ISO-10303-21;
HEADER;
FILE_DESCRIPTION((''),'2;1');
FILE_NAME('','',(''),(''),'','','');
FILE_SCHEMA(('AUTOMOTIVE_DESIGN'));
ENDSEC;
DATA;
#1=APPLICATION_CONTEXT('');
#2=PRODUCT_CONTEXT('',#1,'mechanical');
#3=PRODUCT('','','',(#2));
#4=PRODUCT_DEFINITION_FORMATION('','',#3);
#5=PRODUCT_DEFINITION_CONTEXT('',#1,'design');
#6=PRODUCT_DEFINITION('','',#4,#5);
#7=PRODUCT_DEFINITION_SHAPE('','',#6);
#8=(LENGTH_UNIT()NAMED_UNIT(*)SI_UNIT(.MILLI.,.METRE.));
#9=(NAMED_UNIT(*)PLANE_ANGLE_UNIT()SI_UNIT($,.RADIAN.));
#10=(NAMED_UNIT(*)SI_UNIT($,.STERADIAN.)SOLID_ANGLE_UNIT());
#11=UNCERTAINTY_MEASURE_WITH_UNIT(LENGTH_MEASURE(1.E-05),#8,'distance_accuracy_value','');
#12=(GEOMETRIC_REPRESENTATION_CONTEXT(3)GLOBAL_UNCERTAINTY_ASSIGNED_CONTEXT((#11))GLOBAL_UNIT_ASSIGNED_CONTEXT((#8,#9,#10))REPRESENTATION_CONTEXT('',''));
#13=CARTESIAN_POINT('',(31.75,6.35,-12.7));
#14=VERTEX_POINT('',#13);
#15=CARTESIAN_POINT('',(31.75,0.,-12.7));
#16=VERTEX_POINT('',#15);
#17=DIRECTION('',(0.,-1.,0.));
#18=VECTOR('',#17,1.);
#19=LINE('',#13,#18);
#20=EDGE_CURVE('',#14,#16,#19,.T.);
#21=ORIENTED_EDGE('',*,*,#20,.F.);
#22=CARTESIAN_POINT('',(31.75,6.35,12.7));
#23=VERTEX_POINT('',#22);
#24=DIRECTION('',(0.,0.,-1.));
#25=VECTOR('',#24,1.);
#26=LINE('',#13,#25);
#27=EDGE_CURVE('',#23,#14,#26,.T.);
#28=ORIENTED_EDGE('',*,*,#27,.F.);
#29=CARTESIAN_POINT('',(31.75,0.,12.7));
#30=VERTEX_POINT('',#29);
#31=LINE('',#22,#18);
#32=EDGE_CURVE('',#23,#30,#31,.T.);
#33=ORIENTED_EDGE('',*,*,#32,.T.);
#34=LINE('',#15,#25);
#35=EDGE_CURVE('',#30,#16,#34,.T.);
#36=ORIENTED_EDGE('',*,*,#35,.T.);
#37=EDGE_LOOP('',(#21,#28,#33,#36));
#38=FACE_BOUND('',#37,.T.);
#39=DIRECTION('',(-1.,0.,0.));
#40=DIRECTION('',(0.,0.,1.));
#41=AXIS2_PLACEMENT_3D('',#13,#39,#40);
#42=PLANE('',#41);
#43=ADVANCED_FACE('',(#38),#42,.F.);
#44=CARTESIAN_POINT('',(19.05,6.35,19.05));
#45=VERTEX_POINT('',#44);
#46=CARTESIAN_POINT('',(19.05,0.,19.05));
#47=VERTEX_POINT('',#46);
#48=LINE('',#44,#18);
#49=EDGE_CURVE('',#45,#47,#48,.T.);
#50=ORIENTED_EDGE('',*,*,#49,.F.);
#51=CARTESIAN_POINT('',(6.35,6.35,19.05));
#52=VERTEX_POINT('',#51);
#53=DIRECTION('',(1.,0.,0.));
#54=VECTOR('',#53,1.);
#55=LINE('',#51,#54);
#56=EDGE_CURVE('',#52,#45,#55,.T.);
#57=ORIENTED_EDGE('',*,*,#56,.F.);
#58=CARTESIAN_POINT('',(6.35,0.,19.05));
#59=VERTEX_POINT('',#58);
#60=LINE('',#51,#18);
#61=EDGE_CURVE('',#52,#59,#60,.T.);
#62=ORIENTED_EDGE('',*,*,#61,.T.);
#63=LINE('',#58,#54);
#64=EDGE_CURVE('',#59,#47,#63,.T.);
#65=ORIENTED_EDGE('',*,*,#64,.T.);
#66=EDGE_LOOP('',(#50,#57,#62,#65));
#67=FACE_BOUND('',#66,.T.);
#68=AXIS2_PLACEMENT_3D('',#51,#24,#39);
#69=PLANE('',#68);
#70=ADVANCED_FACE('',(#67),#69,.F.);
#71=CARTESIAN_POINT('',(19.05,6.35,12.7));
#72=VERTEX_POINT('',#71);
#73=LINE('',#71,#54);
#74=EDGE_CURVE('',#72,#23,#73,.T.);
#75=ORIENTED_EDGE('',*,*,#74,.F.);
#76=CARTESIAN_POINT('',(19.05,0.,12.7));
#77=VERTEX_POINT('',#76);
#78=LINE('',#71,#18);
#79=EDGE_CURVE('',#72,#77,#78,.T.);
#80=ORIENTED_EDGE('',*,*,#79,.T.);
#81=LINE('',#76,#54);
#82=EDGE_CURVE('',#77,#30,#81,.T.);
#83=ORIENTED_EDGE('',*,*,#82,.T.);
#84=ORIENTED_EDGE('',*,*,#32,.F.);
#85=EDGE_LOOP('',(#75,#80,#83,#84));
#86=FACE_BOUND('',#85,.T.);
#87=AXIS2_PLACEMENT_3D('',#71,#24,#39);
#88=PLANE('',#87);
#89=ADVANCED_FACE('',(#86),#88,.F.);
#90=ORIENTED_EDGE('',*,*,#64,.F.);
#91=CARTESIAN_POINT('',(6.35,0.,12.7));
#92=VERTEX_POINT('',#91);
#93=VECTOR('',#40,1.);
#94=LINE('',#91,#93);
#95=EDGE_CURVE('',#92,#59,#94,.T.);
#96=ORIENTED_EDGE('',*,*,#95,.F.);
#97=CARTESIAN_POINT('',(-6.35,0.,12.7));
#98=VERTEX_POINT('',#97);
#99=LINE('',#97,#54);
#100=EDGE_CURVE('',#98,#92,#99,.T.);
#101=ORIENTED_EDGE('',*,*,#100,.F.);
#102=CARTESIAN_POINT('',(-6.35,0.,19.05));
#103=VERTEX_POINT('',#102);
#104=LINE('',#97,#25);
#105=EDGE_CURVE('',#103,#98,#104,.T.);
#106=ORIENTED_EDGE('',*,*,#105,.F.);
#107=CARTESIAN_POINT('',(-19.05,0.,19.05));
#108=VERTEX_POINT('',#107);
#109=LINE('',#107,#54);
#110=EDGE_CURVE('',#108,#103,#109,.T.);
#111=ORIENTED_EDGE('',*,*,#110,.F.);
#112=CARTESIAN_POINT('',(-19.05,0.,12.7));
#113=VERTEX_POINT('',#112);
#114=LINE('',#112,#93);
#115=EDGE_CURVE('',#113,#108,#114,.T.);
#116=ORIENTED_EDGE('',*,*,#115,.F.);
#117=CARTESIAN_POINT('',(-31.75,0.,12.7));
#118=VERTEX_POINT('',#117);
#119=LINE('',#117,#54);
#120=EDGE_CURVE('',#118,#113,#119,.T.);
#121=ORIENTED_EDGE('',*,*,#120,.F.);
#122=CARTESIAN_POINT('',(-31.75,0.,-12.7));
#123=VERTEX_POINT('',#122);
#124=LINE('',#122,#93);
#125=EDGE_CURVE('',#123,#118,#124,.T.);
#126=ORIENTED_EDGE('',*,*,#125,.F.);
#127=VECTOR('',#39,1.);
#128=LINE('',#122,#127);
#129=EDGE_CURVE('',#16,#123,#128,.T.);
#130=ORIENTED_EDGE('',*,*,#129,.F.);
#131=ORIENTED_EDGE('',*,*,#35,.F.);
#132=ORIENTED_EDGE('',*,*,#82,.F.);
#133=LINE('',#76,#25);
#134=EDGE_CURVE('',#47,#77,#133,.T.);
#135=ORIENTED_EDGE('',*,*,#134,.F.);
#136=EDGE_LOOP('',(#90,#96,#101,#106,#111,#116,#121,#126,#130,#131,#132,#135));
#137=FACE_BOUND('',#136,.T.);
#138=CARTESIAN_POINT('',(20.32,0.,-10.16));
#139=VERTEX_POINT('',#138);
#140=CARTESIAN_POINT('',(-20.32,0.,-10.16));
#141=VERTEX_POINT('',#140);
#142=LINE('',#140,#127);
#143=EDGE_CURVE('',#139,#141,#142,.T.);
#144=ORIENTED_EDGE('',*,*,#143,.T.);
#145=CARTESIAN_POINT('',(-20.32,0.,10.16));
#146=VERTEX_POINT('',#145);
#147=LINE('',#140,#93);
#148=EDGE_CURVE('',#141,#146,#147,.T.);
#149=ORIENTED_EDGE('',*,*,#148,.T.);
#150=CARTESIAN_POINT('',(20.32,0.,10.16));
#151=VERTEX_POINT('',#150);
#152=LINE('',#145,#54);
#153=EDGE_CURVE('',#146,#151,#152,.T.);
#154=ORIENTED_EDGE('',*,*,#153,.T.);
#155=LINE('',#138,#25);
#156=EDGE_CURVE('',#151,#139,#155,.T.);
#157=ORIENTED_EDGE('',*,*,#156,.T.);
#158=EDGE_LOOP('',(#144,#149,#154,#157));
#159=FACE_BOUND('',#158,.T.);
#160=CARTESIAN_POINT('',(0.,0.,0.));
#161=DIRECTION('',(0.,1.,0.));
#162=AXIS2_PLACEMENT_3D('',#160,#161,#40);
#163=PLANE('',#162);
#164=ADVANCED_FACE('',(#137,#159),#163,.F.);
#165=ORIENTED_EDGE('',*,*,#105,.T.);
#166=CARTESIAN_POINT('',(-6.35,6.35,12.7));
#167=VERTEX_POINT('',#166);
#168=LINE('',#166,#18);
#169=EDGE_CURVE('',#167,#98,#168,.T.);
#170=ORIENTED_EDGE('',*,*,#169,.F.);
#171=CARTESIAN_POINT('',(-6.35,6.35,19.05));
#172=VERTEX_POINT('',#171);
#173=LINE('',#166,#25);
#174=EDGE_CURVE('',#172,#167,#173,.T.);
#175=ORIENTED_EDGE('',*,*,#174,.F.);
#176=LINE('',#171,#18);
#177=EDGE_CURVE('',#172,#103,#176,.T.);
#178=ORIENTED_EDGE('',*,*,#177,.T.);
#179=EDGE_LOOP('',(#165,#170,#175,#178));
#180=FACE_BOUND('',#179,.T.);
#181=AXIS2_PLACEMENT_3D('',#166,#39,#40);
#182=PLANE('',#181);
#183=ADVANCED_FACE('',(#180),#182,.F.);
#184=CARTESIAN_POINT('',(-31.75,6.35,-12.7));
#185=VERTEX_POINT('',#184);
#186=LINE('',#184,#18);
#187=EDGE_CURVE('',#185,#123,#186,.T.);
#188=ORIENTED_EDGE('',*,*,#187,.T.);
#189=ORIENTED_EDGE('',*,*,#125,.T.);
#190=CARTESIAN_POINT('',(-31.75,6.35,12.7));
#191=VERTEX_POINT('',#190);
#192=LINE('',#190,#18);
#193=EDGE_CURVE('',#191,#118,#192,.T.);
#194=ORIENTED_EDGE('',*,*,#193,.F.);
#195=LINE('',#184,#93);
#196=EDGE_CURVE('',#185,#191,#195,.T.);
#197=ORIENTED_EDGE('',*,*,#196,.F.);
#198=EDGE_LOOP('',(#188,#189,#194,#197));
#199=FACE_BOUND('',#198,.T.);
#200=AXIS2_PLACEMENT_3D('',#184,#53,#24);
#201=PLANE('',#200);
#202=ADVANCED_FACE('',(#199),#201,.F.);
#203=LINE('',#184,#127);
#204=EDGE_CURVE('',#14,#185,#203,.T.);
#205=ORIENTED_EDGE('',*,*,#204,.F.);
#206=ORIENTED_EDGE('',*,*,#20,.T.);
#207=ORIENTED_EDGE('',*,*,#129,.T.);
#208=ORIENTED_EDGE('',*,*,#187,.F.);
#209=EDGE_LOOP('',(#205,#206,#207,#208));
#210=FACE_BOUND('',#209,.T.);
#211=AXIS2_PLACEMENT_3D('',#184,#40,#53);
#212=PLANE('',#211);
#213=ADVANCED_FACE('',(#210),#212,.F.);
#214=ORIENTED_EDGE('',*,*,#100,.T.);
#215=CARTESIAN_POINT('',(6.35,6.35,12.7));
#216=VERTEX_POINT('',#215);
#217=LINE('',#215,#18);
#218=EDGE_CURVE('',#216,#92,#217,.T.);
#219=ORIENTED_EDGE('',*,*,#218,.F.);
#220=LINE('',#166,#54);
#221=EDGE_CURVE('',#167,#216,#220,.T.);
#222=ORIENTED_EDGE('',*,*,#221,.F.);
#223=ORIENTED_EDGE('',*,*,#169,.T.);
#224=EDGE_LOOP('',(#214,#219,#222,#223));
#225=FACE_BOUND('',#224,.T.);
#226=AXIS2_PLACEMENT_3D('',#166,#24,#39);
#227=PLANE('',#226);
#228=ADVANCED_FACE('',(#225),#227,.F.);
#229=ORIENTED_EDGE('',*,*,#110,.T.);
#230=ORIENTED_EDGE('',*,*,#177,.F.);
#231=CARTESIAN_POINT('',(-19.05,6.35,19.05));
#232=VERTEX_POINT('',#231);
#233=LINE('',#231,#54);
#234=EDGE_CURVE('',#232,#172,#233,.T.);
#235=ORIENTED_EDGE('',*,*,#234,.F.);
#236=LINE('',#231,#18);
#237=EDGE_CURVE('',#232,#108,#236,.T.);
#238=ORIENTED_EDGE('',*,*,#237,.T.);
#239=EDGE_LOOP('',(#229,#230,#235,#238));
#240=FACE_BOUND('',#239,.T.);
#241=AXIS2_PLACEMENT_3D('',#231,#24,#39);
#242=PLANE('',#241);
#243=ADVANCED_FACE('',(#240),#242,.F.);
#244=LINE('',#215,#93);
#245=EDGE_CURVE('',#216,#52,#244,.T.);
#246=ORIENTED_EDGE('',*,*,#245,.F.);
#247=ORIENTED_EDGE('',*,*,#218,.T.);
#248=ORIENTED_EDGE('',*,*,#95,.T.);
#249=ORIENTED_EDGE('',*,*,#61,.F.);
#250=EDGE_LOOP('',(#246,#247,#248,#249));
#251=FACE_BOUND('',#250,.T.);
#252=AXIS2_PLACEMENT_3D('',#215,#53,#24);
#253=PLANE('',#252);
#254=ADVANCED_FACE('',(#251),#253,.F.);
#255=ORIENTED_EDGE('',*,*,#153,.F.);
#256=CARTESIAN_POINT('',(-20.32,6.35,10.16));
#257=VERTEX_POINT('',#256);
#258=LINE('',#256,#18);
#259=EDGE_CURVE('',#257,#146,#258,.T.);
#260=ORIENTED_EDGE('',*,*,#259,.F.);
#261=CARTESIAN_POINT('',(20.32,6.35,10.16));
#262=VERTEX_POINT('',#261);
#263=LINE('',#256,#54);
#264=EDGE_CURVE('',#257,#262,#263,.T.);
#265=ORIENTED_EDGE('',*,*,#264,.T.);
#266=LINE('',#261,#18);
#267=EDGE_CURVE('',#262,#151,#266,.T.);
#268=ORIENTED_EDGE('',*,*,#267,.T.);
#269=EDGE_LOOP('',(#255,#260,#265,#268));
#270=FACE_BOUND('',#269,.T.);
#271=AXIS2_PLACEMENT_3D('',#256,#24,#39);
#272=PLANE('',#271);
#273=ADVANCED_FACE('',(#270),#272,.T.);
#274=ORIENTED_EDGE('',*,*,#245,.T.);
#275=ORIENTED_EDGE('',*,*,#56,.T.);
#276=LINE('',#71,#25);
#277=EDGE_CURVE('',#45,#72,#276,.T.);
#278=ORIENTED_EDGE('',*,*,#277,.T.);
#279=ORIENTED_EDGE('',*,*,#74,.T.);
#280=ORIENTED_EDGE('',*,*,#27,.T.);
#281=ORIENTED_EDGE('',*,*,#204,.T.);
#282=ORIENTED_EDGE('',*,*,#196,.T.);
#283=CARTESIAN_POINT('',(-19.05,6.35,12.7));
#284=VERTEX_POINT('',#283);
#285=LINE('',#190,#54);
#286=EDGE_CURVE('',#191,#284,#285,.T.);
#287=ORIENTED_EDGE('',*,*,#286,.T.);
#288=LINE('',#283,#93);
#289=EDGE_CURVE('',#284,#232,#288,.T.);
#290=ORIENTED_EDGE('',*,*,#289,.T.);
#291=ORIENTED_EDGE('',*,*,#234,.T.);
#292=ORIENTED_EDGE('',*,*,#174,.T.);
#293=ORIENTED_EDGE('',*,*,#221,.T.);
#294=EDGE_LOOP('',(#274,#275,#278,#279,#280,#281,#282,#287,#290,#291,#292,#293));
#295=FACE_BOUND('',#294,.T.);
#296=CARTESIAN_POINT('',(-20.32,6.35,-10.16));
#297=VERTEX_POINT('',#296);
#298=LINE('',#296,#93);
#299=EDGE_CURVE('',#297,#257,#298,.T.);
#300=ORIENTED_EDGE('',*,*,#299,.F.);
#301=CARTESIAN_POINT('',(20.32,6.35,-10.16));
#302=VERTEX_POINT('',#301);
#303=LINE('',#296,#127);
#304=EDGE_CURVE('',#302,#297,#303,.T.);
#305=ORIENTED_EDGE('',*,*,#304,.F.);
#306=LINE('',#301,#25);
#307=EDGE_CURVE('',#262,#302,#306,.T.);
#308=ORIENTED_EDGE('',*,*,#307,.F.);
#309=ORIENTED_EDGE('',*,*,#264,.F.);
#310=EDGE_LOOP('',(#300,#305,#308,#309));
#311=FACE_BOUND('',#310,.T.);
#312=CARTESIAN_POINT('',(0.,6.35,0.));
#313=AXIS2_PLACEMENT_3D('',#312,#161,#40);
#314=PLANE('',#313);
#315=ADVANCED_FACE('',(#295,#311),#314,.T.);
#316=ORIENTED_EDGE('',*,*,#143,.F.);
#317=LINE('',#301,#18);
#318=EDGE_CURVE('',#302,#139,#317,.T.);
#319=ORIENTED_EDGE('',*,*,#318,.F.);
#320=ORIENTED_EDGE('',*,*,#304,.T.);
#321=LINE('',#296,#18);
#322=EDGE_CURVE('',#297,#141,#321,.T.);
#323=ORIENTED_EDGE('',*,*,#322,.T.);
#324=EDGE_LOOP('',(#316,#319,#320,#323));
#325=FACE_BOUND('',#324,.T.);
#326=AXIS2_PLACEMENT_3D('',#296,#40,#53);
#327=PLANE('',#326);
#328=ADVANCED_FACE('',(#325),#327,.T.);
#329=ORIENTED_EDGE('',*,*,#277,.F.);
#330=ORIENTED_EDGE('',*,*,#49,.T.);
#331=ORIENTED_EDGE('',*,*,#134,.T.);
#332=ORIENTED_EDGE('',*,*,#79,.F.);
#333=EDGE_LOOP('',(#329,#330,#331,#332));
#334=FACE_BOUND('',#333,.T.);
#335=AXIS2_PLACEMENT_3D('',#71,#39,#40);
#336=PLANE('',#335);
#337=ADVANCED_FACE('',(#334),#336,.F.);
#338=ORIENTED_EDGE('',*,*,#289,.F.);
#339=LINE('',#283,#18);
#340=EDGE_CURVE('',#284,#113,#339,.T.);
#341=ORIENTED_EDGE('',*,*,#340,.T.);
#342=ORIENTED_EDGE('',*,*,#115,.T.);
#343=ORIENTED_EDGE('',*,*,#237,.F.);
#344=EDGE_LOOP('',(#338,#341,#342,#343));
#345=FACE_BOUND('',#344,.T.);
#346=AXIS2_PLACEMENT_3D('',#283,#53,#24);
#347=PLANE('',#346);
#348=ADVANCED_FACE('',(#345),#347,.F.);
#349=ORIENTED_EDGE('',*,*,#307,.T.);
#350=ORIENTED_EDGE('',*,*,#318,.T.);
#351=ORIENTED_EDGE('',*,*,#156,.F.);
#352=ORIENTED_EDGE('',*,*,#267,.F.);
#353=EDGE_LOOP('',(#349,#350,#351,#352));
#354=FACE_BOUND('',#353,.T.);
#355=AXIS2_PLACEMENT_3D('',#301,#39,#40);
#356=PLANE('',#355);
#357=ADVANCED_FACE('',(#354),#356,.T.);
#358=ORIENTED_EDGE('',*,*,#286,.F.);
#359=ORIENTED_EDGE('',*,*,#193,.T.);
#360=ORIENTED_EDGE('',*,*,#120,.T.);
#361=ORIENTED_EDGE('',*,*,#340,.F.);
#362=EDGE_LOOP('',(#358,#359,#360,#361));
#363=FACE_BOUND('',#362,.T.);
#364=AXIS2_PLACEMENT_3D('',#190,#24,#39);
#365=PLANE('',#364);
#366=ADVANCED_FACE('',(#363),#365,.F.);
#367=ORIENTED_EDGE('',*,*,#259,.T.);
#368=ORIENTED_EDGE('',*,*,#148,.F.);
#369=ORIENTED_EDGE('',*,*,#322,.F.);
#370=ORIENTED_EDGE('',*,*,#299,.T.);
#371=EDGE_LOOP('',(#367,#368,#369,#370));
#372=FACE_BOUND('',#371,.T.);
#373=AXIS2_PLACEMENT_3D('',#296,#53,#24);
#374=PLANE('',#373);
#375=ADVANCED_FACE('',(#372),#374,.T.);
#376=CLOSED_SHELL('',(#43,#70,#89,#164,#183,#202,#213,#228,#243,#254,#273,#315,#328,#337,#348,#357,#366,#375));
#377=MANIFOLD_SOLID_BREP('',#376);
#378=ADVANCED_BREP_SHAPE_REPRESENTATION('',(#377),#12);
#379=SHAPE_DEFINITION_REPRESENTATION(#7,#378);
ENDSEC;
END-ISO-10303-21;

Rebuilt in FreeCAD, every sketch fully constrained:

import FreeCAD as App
import Part
import Sketcher
Q = App.Units.Quantity


def add_polygon(sketch, points):
    """Adds a closed chain of lines whose ends are joined by coincident constraints."""
    first, n = sketch.GeometryCount, len(points)
    for a, b in zip(points, points[1:] + points[:1]):
        sketch.addGeometry(Part.LineSegment(App.Vector(*a, 0), App.Vector(*b, 0)), False)
    for i in range(n):
        sketch.addConstraint(Sketcher.Constraint("Coincident", first + i, 2, first + (i + 1) % n, 1))

doc = App.newDocument("Part")
body = doc.addObject("PartDesign::Body", "Body")

# Sketch on XZ plane
sketch1 = body.newObject("Sketcher::SketchObject", "Sketch")
sketch1.AttachmentSupport = (doc.getObject("XZ_Plane"), [""])
sketch1.MapMode = "FlatFace"
add_polygon(sketch1, [(31.75, -12.7), (-31.75, -12.7), (-31.75, 12.7), (-19.05, 12.7), (-19.05, 19.05), (-6.35, 19.05), (-6.35, 12.7), (6.35, 12.7), (6.35, 19.05), (19.05, 19.05), (19.05, 12.7), (31.75, 12.7)])  # lines 0-11
add_polygon(sketch1, [(-20.32, 10.16), (-20.32, -10.16), (20.32, -10.16), (20.32, 10.16)])  # lines 12-15
sketch1.addConstraint(Sketcher.Constraint("Horizontal", 0))
sketch1.addConstraint(Sketcher.Constraint("Vertical", 1))
sketch1.addConstraint(Sketcher.Constraint("Horizontal", 2))
sketch1.addConstraint(Sketcher.Constraint("Vertical", 3))
sketch1.addConstraint(Sketcher.Constraint("Horizontal", 4))
sketch1.addConstraint(Sketcher.Constraint("Vertical", 5))
sketch1.addConstraint(Sketcher.Constraint("Horizontal", 6))
sketch1.addConstraint(Sketcher.Constraint("Vertical", 7))
sketch1.addConstraint(Sketcher.Constraint("Horizontal", 8))
sketch1.addConstraint(Sketcher.Constraint("Vertical", 9))
sketch1.addConstraint(Sketcher.Constraint("Horizontal", 10))
sketch1.addConstraint(Sketcher.Constraint("Vertical", 11))
sketch1.addConstraint(Sketcher.Constraint("Vertical", 12))
sketch1.addConstraint(Sketcher.Constraint("Horizontal", 13))
sketch1.addConstraint(Sketcher.Constraint("Vertical", 14))
sketch1.addConstraint(Sketcher.Constraint("Horizontal", 15))
sketch1.addConstraint(Sketcher.Constraint("Symmetric", 0, 2, 10, 2, -1, 1))
sketch1.addConstraint(Sketcher.Constraint("Symmetric", 12, 2, 14, 2, -1, 1))
sketch1.addConstraint(Sketcher.Constraint("Symmetric", 4, 2, 7, 2, -2))
sketch1.addConstraint(Sketcher.Constraint("Symmetric", 2, 2, 9, 2, -2))
sketch1.addConstraint(Sketcher.Constraint("Horizontal", 2, 2, 5, 2))
sketch1.addConstraint(Sketcher.Constraint("Equal", 2, 4))
sketch1.addConstraint(Sketcher.Constraint("Equal", 4, 6))
sketch1.addConstraint(Sketcher.Constraint("DistanceY", 1, 1, 1, 2, Q("1 in")))
sketch1.addConstraint(Sketcher.Constraint("DistanceX", 0, 2, 0, 1, Q("2.5 in")))
sketch1.addConstraint(Sketcher.Constraint("DistanceX", 13, 1, 13, 2, Q("1.6 in")))
sketch1.addConstraint(Sketcher.Constraint("DistanceY", 12, 2, 12, 1, Q("0.8 in")))
sketch1.addConstraint(Sketcher.Constraint("DistanceY", 3, 1, 3, 2, Q("0.25 in")))
pad1 = body.newObject("PartDesign::Pad", "Pad")
pad1.Profile = sketch1
pad1.Length = Q("0.25 in")
pad1.Reversed = True

doc.recompute()
